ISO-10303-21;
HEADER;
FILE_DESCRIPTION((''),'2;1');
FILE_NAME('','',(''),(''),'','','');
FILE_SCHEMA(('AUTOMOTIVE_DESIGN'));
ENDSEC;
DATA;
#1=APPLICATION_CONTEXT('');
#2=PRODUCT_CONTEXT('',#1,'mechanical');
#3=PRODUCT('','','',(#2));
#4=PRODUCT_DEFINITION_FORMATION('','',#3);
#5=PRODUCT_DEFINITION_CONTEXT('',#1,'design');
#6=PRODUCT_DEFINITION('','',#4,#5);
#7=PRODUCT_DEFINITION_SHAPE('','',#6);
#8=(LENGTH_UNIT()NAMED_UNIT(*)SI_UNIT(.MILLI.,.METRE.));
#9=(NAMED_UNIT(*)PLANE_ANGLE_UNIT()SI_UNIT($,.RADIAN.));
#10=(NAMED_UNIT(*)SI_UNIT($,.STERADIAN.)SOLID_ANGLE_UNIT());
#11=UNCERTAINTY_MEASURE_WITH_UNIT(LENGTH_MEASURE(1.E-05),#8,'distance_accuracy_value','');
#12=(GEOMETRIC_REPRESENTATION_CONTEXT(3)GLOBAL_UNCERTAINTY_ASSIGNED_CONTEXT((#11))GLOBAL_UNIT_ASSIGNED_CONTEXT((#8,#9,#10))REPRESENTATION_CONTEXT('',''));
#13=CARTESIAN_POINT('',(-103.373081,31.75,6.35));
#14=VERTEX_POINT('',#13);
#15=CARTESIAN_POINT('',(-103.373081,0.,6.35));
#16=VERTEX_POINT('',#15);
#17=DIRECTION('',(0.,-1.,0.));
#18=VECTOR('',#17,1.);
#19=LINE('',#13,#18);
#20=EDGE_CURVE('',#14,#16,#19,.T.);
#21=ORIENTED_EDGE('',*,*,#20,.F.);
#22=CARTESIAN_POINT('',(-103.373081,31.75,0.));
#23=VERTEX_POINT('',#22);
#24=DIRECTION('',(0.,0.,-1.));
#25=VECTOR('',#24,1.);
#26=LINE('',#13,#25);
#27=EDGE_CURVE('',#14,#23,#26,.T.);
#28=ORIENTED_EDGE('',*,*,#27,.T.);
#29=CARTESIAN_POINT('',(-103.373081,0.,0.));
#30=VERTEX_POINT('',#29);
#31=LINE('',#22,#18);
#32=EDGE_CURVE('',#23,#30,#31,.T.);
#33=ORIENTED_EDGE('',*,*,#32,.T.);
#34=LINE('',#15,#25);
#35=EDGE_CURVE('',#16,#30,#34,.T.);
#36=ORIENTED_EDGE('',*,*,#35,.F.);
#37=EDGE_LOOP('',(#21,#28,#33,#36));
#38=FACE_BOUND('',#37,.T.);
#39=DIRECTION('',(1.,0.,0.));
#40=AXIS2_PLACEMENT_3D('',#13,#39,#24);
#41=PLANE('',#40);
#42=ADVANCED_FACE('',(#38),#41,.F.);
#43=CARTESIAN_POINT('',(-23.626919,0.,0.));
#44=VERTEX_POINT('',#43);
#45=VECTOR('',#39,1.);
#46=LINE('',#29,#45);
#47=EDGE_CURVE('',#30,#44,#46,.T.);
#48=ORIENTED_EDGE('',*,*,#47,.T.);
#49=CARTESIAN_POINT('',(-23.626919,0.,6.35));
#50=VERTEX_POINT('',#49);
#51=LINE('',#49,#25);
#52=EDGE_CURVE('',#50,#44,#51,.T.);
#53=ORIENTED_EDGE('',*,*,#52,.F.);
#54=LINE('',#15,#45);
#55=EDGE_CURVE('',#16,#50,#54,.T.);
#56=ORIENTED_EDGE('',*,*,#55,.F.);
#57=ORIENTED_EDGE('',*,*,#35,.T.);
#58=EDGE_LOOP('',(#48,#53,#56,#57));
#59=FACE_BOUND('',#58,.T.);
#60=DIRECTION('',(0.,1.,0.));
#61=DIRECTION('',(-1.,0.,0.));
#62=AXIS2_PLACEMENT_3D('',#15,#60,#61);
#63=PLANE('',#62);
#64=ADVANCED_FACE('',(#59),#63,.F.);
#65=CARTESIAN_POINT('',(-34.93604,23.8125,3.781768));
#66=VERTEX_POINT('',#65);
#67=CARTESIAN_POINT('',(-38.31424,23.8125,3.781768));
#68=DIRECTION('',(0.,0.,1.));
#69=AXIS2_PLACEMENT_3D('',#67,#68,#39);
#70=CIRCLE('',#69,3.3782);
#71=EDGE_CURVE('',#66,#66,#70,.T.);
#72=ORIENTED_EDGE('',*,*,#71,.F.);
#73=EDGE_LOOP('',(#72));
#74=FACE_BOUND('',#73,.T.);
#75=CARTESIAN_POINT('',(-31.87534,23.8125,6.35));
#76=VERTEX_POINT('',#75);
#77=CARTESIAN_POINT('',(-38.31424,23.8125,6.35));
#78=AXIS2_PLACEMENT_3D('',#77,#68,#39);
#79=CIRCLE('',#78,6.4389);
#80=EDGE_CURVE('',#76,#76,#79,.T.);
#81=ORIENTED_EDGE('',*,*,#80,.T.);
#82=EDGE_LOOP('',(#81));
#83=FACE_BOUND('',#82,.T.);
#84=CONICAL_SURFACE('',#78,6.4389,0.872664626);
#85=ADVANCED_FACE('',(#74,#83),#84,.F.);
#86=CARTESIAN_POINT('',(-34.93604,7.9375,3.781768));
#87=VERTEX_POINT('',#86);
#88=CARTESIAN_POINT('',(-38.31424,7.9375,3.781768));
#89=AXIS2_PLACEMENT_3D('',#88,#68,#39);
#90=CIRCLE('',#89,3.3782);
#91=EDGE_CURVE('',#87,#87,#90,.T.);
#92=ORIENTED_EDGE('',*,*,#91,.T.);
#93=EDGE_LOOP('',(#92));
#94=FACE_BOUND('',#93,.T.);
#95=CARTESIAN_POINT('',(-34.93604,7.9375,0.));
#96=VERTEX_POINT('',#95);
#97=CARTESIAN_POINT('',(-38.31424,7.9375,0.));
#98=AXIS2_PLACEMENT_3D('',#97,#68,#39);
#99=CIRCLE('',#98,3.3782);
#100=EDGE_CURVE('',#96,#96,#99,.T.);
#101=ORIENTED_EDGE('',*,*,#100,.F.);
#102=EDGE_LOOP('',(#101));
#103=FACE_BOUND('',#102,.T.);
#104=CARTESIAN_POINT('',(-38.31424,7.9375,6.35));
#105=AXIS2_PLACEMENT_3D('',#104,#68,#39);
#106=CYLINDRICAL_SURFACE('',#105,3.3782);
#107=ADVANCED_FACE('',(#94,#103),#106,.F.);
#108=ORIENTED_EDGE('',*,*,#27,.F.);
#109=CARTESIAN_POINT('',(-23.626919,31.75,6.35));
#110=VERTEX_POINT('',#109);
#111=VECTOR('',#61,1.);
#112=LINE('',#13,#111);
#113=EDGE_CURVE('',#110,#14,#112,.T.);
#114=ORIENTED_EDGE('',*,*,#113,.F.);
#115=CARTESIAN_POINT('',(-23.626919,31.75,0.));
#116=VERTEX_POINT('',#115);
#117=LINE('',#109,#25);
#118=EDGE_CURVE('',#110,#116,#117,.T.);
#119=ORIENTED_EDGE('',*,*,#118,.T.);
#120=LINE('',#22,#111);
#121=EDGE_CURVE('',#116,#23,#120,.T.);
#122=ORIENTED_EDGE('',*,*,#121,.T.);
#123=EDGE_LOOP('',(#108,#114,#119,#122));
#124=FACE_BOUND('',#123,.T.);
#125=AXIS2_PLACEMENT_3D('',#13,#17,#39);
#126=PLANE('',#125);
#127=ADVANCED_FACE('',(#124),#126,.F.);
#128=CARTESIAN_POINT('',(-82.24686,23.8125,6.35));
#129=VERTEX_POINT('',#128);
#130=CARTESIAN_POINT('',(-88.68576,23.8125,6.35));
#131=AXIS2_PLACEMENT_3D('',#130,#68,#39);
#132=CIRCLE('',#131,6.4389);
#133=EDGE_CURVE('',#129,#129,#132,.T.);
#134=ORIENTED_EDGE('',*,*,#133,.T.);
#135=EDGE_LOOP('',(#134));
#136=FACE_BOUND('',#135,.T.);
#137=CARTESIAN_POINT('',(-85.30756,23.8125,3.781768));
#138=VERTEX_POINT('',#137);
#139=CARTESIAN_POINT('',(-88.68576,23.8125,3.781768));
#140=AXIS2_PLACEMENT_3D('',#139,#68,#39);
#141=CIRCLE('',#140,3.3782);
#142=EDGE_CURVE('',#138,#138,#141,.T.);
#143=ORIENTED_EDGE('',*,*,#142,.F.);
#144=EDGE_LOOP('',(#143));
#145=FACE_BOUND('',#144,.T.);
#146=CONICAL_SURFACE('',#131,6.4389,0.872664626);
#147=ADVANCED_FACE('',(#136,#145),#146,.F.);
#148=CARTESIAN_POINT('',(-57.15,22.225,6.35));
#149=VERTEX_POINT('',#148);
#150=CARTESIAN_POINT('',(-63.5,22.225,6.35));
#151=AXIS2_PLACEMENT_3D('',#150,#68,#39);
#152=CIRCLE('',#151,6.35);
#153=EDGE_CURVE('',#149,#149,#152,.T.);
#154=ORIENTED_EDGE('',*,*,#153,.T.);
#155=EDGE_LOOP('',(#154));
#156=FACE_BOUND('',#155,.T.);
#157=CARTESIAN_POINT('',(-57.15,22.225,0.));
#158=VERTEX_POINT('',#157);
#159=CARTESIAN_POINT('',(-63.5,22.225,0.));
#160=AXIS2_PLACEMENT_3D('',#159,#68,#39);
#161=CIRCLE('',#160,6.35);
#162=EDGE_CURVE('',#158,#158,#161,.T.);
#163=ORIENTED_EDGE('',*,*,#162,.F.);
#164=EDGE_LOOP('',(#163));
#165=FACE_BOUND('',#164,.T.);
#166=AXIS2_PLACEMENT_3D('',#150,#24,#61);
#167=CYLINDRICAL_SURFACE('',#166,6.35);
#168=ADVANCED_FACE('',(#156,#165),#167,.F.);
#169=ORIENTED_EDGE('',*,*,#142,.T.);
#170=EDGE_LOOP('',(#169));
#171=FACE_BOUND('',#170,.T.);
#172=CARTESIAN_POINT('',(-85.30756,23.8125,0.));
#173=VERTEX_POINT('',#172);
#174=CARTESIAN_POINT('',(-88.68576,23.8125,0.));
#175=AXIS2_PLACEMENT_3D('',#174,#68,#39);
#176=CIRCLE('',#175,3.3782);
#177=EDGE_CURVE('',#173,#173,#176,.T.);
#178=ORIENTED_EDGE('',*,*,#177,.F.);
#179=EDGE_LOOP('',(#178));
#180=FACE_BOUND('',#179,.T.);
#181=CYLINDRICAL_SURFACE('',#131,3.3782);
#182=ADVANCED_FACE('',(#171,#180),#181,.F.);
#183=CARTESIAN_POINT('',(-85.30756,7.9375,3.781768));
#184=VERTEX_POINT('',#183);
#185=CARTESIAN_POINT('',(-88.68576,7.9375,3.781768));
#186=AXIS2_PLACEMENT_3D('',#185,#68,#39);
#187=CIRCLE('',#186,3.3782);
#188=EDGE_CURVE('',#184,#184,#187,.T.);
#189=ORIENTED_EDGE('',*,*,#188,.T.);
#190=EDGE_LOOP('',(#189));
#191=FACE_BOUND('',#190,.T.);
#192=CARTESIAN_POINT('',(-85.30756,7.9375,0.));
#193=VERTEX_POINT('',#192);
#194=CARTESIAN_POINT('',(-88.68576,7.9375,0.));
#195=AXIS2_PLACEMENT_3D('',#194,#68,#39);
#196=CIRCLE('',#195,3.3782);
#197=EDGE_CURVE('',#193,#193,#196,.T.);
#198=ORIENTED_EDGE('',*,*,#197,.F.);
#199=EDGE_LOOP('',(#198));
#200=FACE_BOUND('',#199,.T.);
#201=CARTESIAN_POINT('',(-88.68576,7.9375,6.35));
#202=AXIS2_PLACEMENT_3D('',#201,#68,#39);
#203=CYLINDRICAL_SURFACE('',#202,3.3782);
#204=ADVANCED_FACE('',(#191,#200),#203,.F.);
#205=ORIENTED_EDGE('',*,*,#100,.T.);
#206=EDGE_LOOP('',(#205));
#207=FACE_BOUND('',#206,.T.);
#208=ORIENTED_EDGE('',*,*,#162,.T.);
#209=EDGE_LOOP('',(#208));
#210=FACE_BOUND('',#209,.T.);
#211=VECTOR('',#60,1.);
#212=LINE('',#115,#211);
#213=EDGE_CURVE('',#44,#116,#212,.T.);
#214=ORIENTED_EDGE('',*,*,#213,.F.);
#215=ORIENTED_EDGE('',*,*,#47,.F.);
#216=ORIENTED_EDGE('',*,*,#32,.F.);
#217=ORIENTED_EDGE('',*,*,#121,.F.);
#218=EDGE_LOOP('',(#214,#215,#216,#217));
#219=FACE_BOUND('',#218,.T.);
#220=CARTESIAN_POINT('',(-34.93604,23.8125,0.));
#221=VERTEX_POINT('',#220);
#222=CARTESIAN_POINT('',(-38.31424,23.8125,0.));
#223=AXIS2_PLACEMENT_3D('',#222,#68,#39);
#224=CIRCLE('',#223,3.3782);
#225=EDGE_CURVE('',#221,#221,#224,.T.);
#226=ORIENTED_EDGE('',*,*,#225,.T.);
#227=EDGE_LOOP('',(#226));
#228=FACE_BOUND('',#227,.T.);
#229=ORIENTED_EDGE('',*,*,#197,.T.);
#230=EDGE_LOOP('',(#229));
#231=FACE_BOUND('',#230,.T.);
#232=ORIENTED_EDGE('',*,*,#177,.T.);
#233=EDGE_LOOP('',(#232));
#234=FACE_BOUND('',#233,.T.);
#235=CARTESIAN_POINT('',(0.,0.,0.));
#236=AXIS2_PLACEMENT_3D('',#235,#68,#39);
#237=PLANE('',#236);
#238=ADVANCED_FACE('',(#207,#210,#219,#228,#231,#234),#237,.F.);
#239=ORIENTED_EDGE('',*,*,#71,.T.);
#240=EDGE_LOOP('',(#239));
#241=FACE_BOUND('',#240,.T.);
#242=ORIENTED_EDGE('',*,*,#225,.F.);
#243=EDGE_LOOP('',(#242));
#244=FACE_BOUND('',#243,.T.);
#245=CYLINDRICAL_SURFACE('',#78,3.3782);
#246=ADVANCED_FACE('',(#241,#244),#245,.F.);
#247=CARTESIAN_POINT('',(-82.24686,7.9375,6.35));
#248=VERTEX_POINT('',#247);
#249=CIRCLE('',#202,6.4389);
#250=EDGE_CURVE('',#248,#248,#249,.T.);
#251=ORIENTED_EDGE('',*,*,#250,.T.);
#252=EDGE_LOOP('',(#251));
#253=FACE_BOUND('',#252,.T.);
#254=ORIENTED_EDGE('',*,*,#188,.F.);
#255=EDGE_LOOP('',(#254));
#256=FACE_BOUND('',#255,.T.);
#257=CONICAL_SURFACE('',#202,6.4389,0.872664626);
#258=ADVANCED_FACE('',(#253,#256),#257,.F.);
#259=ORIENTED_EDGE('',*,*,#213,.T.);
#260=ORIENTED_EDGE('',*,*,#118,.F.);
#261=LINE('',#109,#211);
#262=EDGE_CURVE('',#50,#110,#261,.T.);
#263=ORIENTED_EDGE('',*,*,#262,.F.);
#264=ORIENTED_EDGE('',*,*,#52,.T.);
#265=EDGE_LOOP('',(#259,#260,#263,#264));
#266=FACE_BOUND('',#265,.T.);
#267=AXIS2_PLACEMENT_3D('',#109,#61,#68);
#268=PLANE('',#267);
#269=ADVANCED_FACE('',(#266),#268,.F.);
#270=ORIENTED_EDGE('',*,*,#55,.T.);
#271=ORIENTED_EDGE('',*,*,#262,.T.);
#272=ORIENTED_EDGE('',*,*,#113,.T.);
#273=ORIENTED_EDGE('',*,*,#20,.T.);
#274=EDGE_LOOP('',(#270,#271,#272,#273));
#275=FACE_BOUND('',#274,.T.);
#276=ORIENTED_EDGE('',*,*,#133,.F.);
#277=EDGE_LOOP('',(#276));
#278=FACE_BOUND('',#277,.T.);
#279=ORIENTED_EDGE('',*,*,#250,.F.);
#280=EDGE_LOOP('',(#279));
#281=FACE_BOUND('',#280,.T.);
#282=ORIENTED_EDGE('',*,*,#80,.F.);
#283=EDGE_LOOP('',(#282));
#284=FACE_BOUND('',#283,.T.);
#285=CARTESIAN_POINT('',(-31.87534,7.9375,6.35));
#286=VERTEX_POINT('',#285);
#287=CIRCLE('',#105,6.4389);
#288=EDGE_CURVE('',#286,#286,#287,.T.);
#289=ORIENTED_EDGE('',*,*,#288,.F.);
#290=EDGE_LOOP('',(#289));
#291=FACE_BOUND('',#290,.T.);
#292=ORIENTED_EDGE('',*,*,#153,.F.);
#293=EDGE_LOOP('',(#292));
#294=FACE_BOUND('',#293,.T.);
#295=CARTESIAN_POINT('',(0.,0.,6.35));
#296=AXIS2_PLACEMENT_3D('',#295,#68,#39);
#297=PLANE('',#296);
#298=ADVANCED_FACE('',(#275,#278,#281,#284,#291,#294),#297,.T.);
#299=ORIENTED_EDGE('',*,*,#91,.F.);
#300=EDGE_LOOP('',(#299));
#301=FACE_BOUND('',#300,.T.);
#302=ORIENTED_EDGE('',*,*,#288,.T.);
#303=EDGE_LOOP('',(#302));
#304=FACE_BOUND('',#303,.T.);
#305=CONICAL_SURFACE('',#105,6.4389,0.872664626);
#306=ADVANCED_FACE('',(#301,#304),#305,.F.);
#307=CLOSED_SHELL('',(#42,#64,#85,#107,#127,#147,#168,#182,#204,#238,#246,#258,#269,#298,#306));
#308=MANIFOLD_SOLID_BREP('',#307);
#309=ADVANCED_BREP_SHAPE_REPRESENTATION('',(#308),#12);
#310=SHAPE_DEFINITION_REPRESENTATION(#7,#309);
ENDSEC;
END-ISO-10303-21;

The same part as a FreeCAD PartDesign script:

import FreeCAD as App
import Part
import Sketcher
from FreeCAD import Vector
Q = App.Units.Quantity


def add_polygon(sketch, points):
    """Adds a closed chain of lines whose ends are joined by coincident constraints."""
    first, n = sketch.GeometryCount, len(points)
    for a, b in zip(points, points[1:] + points[:1]):
        sketch.addGeometry(Part.LineSegment(App.Vector(*a, 0), App.Vector(*b, 0)), False)
    for i in range(n):
        sketch.addConstraint(Sketcher.Constraint("Coincident", first + i, 2, first + (i + 1) % n, 1))

doc = App.newDocument("Part")
params = doc.addObject("Spreadsheet::Sheet", "Params")
for row, (alias, value) in enumerate([
    ("sketch1_diameter", "0.5 in"),
    ("sketch1_height", "1.25 in"),
    ("pad1_length", "0.25 in"),
    ("sketch2_diameter", "0.266 in"),
    ("hole_diameter", "0.266 in"),
    ("hole_csink_diameter", "0.507 in"),
], start=1):
    params.set(f"A{row}", alias)
    params.set(f"B{row}", "=" + value)
    params.setAlias(f"B{row}", alias)

body = doc.addObject("PartDesign::Body", "Body")

# Sketch on XY plane
sketch1 = doc.addObject("Sketcher::SketchObject", "Sketch")
body.addObject(sketch1)
sketch1.AttachmentSupport = (doc.XY_Plane, [""])
sketch1.MapMode = "FlatFace"
add_polygon(sketch1, [(-103, 32), (-103, 0), (-24, 0), (-24, 32)])  # lines 0-3
sketch1.addGeometry(Part.Circle(Vector(-64, 22, 0), Vector(0, 0, 1), 6), False)  # 4
sketch1.addConstraint([
    Sketcher.Constraint("Vertical", 0),
    Sketcher.Constraint("Horizontal", 1),
    Sketcher.Constraint("Vertical", 2),
    Sketcher.Constraint("Horizontal", 3),
    Sketcher.Constraint("PointOnObject", 0, 2, -1),
    Sketcher.Constraint("Diameter", 4, Q("0.5 in")),
    Sketcher.Constraint("DistanceY", 0, 2, 0, 1, Q("1.25 in")),
    Sketcher.Constraint("DistanceX", 4, 3, -1, 1, Q("2.5 in")),
    Sketcher.Constraint("DistanceY", -1, 1, 4, 3, Q("0.875 in")),
    Sketcher.Constraint("DistanceX", 1, 1, 1, 2, Q("79.746163 mm")),
    Sketcher.Constraint("DistanceX", 0, 2, -1, 1, Q("103.373081 mm")),
])
sketch1.setExpression("Constraints[9]", "Params.sketch1_diameter")
sketch1.setExpression("Constraints[10]", "Params.sketch1_height")
pad1 = doc.addObject("PartDesign::Pad", "Pad")
body.addObject(pad1)
pad1.Profile = sketch1
pad1.setExpression("Length", "Params.pad1_length")

# Sketch on XY plane
sketch2 = doc.addObject("Sketcher::SketchObject", "Sketch001")
body.addObject(sketch2)
sketch2.AttachmentSupport = (doc.XY_Plane, [""])
sketch2.MapMode = "FlatFace"
sketch2.AttachmentOffset = App.Placement(Vector(0, 0, 0.25 * 25.4), App.Rotation())
sketch2.addGeometry([
    Part.Circle(Vector(-88.7, 23.8, 0), Vector(0, 0, 1), 3.4),
    Part.Circle(Vector(-88.7, 7.9, 0), Vector(0, 0, 1), 3.4),
    Part.Circle(Vector(-38.3, 7.9, 0), Vector(0, 0, 1), 3.4),
    Part.Circle(Vector(-38.3, 23.8, 0), Vector(0, 0, 1), 3.4),
], False)
sketch2.addConstraint([
    Sketcher.Constraint("Equal", 0, 1),
    Sketcher.Constraint("Equal", 1, 2),
    Sketcher.Constraint("Equal", 2, 3),
    Sketcher.Constraint("Horizontal", 1, 3, 2, 3),
    Sketcher.Constraint("Horizontal", 0, 3, 3, 3),
    Sketcher.Constraint("Vertical", 0, 3, 1, 3),
    Sketcher.Constraint("Vertical", 2, 3, 3, 3),
    Sketcher.Constraint("Diameter", 0, Q("0.266 in")),
    Sketcher.Constraint("DistanceY", -1, 1, 0, 3, Q("0.9375 in")),
    Sketcher.Constraint("DistanceY", -1, 1, 1, 3, Q("0.3125 in")),
    Sketcher.Constraint("DistanceX", 0, 3, -1, 1, Q("88.68576 mm")),
    Sketcher.Constraint("DistanceX", 2, 3, -1, 1, Q("38.31424 mm")),
])
sketch2.setExpression("Constraints[7]", "Params.sketch2_diameter")
doc.recompute()
hole = doc.addObject("PartDesign::Hole", "Hole")
body.addObject(hole)
hole.Profile = sketch2
hole.ThreadType = "None"
hole.setExpression("Diameter", "Params.hole_diameter")
hole.DepthType = "ThroughAll"
hole.HoleCutType = "Countersink"
hole.setExpression("HoleCutDiameter", "Params.hole_csink_diameter")
hole.HoleCutCountersinkAngle = 100

doc.recompute()
